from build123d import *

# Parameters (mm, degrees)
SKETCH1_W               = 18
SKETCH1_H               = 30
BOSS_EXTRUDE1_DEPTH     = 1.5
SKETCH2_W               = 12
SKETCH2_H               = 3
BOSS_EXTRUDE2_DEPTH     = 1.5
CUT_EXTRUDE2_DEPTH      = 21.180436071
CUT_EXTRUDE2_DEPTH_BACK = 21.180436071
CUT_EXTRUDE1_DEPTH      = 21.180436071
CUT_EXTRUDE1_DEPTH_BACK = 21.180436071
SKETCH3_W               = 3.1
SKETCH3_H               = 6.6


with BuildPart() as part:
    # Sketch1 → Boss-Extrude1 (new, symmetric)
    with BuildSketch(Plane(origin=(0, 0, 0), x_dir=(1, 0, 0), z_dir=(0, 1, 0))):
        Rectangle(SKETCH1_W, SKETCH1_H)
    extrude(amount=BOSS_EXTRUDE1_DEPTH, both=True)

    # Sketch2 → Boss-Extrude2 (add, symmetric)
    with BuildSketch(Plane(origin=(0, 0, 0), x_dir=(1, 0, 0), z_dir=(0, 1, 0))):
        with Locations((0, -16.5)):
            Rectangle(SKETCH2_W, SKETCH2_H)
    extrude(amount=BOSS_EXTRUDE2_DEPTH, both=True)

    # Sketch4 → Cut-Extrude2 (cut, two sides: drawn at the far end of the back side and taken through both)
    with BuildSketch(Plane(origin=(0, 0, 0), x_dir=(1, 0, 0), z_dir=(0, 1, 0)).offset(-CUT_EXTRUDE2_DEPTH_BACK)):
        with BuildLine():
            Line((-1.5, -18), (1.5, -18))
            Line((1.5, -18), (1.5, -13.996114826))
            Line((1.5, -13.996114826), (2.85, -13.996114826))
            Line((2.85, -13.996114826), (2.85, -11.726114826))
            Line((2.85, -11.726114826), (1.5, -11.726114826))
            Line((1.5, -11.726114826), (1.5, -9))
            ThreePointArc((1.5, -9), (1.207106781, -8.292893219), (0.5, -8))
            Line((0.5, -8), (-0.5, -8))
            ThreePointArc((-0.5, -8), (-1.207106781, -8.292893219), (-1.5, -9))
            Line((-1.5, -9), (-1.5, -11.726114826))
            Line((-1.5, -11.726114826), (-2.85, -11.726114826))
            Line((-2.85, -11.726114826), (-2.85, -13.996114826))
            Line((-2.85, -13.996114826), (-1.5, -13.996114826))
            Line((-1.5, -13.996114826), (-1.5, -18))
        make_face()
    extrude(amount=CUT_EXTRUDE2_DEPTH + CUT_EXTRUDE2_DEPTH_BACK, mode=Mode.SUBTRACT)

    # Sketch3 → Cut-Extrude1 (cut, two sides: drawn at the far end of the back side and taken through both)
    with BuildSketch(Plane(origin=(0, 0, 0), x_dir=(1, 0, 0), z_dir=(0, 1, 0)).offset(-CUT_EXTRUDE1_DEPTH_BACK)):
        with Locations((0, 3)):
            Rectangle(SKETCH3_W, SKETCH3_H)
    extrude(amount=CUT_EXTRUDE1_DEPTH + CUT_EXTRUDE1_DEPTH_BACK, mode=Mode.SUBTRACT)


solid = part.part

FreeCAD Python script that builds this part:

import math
import FreeCAD as App
import Part
import Sketcher

V = App.Vector
Q = App.Units.Quantity

doc = App.newDocument("Part")
body = doc.addObject("PartDesign::Body", "Body")

sketch1 = body.newObject("Sketcher::SketchObject", "Sketch")
sketch1.AttachmentSupport = (doc.getObject("XZ_Plane"), [""])
sketch1.MapMode = "FlatFace"
sketch1.addGeometry([
    Part.LineSegment(V(-9, -15, 0), V(-9, 15, 0)),
    Part.LineSegment(V(-9, 15, 0), V(9, 15, 0)),
    Part.LineSegment(V(9, 15, 0), V(9, -15, 0)),
    Part.LineSegment(V(9, -15, 0), V(-9, -15, 0)),
], False)
sketch1.addConstraint([
    Sketcher.Constraint("Coincident", 0, 2, 1, 1),
    Sketcher.Constraint("Coincident", 1, 2, 2, 1),
    Sketcher.Constraint("Coincident", 2, 2, 3, 1),
    Sketcher.Constraint("Coincident", 3, 2, 0, 1),
    Sketcher.Constraint("Vertical", 0),
    Sketcher.Constraint("Horizontal", 1),
    Sketcher.Constraint("Vertical", 2),
    Sketcher.Constraint("Horizontal", 3),
    Sketcher.Constraint("Symmetric", 0, 2, 2, 2, -1, 1),
    Sketcher.Constraint("DistanceX", 1, 1, 1, 2, Q("18 mm")),
    Sketcher.Constraint("DistanceY", 0, 1, 0, 2, Q("30 mm")),
])
pad1 = body.newObject("PartDesign::Pad", "Pad")
pad1.Profile = sketch1
pad1.Length = 3
pad1.Midplane = True

sketch2 = body.newObject("Sketcher::SketchObject", "Sketch001")
sketch2.AttachmentSupport = (doc.getObject("XZ_Plane"), [""])
sketch2.MapMode = "FlatFace"
sketch2.addGeometry([
    Part.LineSegment(V(-6, 15, 0), V(-6, 18, 0)),
    Part.LineSegment(V(-6, 18, 0), V(6, 18, 0)),
    Part.LineSegment(V(6, 18, 0), V(6, 15, 0)),
    Part.LineSegment(V(6, 15, 0), V(-6, 15, 0)),
], False)
sketch2.addConstraint([
    Sketcher.Constraint("Coincident", 0, 2, 1, 1),
    Sketcher.Constraint("Coincident", 1, 2, 2, 1),
    Sketcher.Constraint("Coincident", 2, 2, 3, 1),
    Sketcher.Constraint("Coincident", 3, 2, 0, 1),
    Sketcher.Constraint("Vertical", 0),
    Sketcher.Constraint("Horizontal", 1),
    Sketcher.Constraint("Vertical", 2),
    Sketcher.Constraint("Horizontal", 3),
    Sketcher.Constraint("DistanceX", 1, 1, 1, 2, Q("12 mm")),
    Sketcher.Constraint("DistanceY", 0, 1, 0, 2, Q("3 mm")),
    Sketcher.Constraint("DistanceX", 0, 2, -1, 1, Q("6 mm")),
    Sketcher.Constraint("DistanceY", -1, 1, 0, 2, Q("18 mm")),
])
pad2 = body.newObject("PartDesign::Pad", "Pad001")
pad2.Profile = sketch2
pad2.Length = 3
pad2.Midplane = True

sketch3 = body.newObject("Sketcher::SketchObject", "Sketch002")
sketch3.AttachmentSupport = (doc.getObject("XZ_Plane"), [""])
sketch3.MapMode = "FlatFace"
sketch3.addGeometry([
    Part.LineSegment(V(-1.5, 18, 0), V(1.5, 18, 0)),
    Part.LineSegment(V(1.5, 18, 0), V(1.5, 14, 0)),
    Part.LineSegment(V(1.5, 14, 0), V(2.9, 14, 0)),
    Part.LineSegment(V(2.9, 14, 0), V(2.9, 11.7, 0)),
    Part.LineSegment(V(2.9, 11.7, 0), V(1.5, 11.7, 0)),
    Part.LineSegment(V(1.5, 11.7, 0), V(1.5, 9, 0)),
    Part.ArcOfCircle(Part.Circle(V(0.5, 9, 0), V(0, 0, 1), 1), math.radians(-90), math.radians(0)),
    Part.LineSegment(V(0.5, 8, 0), V(-0.5, 8, 0)),
    Part.ArcOfCircle(Part.Circle(V(-0.5, 9, 0), V(0, 0, 1), 1), math.radians(-180), math.radians(-90)),
    Part.LineSegment(V(-1.5, 9, 0), V(-1.5, 11.7, 0)),
    Part.LineSegment(V(-1.5, 11.7, 0), V(-2.9, 11.7, 0)),
    Part.LineSegment(V(-2.9, 11.7, 0), V(-2.9, 14, 0)),
    Part.LineSegment(V(-2.9, 14, 0), V(-1.5, 14, 0)),
    Part.LineSegment(V(-1.5, 14, 0), V(-1.5, 18, 0)),
], False)
sketch3.addConstraint([
    Sketcher.Constraint("Coincident", 0, 2, 1, 1),
    Sketcher.Constraint("Coincident", 1, 2, 2, 1),
    Sketcher.Constraint("Coincident", 2, 2, 3, 1),
    Sketcher.Constraint("Coincident", 3, 2, 4, 1),
    Sketcher.Constraint("Coincident", 4, 2, 5, 1),
    Sketcher.Constraint("Tangent", 5, 2, 6, 2),
    Sketcher.Constraint("Tangent", 6, 1, 7, 1),
    Sketcher.Constraint("Tangent", 7, 2, 8, 2),
    Sketcher.Constraint("Tangent", 8, 1, 9, 1),
    Sketcher.Constraint("Coincident", 9, 2, 10, 1),
    Sketcher.Constraint("Coincident", 10, 2, 11, 1),
    Sketcher.Constraint("Coincident", 11, 2, 12, 1),
    Sketcher.Constraint("Coincident", 12, 2, 13, 1),
    Sketcher.Constraint("Coincident", 13, 2, 0, 1),
    Sketcher.Constraint("Horizontal", 0),
    Sketcher.Constraint("Vertical", 1),
    Sketcher.Constraint("Horizontal", 2),
    Sketcher.Constraint("Vertical", 3),
    Sketcher.Constraint("Horizontal", 4),
    Sketcher.Constraint("Vertical", 5),
    Sketcher.Constraint("Horizontal", 7),
    Sketcher.Constraint("Vertical", 9),
    Sketcher.Constraint("Horizontal", 10),
    Sketcher.Constraint("Vertical", 11),
    Sketcher.Constraint("Horizontal", 12),
    Sketcher.Constraint("Vertical", 13),
    Sketcher.Constraint("Equal", 6, 8),
    Sketcher.Constraint("Symmetric", 4, 2, 9, 2, -2),
    Sketcher.Constraint("Symmetric", 2, 2, 11, 2, -2),
    Sketcher.Constraint("Vertical", 1, 2, 4, 2),
    Sketcher.Constraint("Vertical", 9, 2, 12, 2),
    Sketcher.Constraint("Radius", 6, Q("1 mm")),
    Sketcher.Constraint("DistanceX", 0, 1, 0, 2, Q("3 mm")),
    Sketcher.Constraint("DistanceY", -1, 1, 6, 3, Q("9 mm")),
    Sketcher.Constraint("DistanceY", -1, 1, 0, 2, Q("18 mm")),
    Sketcher.Constraint("DistanceX", 2, 1, 2, 2, Q("1.35 mm")),
    Sketcher.Constraint("DistanceY", 3, 2, 3, 1, Q("2.27 mm")),
    Sketcher.Constraint("DistanceY", 1, 2, 1, 1, Q("4.003885 mm")),
])
pocket1 = body.newObject("PartDesign::Pocket", "Pocket")
pocket1.Profile = sketch3
pocket1.Type = "ThroughAll"
pocket1.Midplane = True

sketch4 = body.newObject("Sketcher::SketchObject", "Sketch003")
sketch4.AttachmentSupport = (doc.getObject("XZ_Plane"), [""])
sketch4.MapMode = "FlatFace"
sketch4.addGeometry([
    Part.LineSegment(V(-1.6, -6.3, 0), V(-1.6, 0.3, 0)),
    Part.LineSegment(V(-1.6, 0.3, 0), V(1.6, 0.3, 0)),
    Part.LineSegment(V(1.6, 0.3, 0), V(1.6, -6.3, 0)),
    Part.LineSegment(V(1.6, -6.3, 0), V(-1.6, -6.3, 0)),
], False)
sketch4.addConstraint([
    Sketcher.Constraint("Coincident", 0, 2, 1, 1),
    Sketcher.Constraint("Coincident", 1, 2, 2, 1),
    Sketcher.Constraint("Coincident", 2, 2, 3, 1),
    Sketcher.Constraint("Coincident", 3, 2, 0, 1),
    Sketcher.Constraint("Vertical", 0),
    Sketcher.Constraint("Horizontal", 1),
    Sketcher.Constraint("Vertical", 2),
    Sketcher.Constraint("Horizontal", 3),
    Sketcher.Constraint("DistanceX", 1, 1, 1, 2, Q("3.1 mm")),
    Sketcher.Constraint("DistanceY", 0, 1, 0, 2, Q("6.6 mm")),
    Sketcher.Constraint("DistanceY", -1, 1, 0, 2, Q("0.3 mm")),
    Sketcher.Constraint("DistanceX", 0, 2, -1, 1, Q("1.55 mm")),
])
pocket2 = body.newObject("PartDesign::Pocket", "Pocket001")
pocket2.Profile = sketch4
pocket2.Type = "ThroughAll"
pocket2.Midplane = True

doc.recompute()
